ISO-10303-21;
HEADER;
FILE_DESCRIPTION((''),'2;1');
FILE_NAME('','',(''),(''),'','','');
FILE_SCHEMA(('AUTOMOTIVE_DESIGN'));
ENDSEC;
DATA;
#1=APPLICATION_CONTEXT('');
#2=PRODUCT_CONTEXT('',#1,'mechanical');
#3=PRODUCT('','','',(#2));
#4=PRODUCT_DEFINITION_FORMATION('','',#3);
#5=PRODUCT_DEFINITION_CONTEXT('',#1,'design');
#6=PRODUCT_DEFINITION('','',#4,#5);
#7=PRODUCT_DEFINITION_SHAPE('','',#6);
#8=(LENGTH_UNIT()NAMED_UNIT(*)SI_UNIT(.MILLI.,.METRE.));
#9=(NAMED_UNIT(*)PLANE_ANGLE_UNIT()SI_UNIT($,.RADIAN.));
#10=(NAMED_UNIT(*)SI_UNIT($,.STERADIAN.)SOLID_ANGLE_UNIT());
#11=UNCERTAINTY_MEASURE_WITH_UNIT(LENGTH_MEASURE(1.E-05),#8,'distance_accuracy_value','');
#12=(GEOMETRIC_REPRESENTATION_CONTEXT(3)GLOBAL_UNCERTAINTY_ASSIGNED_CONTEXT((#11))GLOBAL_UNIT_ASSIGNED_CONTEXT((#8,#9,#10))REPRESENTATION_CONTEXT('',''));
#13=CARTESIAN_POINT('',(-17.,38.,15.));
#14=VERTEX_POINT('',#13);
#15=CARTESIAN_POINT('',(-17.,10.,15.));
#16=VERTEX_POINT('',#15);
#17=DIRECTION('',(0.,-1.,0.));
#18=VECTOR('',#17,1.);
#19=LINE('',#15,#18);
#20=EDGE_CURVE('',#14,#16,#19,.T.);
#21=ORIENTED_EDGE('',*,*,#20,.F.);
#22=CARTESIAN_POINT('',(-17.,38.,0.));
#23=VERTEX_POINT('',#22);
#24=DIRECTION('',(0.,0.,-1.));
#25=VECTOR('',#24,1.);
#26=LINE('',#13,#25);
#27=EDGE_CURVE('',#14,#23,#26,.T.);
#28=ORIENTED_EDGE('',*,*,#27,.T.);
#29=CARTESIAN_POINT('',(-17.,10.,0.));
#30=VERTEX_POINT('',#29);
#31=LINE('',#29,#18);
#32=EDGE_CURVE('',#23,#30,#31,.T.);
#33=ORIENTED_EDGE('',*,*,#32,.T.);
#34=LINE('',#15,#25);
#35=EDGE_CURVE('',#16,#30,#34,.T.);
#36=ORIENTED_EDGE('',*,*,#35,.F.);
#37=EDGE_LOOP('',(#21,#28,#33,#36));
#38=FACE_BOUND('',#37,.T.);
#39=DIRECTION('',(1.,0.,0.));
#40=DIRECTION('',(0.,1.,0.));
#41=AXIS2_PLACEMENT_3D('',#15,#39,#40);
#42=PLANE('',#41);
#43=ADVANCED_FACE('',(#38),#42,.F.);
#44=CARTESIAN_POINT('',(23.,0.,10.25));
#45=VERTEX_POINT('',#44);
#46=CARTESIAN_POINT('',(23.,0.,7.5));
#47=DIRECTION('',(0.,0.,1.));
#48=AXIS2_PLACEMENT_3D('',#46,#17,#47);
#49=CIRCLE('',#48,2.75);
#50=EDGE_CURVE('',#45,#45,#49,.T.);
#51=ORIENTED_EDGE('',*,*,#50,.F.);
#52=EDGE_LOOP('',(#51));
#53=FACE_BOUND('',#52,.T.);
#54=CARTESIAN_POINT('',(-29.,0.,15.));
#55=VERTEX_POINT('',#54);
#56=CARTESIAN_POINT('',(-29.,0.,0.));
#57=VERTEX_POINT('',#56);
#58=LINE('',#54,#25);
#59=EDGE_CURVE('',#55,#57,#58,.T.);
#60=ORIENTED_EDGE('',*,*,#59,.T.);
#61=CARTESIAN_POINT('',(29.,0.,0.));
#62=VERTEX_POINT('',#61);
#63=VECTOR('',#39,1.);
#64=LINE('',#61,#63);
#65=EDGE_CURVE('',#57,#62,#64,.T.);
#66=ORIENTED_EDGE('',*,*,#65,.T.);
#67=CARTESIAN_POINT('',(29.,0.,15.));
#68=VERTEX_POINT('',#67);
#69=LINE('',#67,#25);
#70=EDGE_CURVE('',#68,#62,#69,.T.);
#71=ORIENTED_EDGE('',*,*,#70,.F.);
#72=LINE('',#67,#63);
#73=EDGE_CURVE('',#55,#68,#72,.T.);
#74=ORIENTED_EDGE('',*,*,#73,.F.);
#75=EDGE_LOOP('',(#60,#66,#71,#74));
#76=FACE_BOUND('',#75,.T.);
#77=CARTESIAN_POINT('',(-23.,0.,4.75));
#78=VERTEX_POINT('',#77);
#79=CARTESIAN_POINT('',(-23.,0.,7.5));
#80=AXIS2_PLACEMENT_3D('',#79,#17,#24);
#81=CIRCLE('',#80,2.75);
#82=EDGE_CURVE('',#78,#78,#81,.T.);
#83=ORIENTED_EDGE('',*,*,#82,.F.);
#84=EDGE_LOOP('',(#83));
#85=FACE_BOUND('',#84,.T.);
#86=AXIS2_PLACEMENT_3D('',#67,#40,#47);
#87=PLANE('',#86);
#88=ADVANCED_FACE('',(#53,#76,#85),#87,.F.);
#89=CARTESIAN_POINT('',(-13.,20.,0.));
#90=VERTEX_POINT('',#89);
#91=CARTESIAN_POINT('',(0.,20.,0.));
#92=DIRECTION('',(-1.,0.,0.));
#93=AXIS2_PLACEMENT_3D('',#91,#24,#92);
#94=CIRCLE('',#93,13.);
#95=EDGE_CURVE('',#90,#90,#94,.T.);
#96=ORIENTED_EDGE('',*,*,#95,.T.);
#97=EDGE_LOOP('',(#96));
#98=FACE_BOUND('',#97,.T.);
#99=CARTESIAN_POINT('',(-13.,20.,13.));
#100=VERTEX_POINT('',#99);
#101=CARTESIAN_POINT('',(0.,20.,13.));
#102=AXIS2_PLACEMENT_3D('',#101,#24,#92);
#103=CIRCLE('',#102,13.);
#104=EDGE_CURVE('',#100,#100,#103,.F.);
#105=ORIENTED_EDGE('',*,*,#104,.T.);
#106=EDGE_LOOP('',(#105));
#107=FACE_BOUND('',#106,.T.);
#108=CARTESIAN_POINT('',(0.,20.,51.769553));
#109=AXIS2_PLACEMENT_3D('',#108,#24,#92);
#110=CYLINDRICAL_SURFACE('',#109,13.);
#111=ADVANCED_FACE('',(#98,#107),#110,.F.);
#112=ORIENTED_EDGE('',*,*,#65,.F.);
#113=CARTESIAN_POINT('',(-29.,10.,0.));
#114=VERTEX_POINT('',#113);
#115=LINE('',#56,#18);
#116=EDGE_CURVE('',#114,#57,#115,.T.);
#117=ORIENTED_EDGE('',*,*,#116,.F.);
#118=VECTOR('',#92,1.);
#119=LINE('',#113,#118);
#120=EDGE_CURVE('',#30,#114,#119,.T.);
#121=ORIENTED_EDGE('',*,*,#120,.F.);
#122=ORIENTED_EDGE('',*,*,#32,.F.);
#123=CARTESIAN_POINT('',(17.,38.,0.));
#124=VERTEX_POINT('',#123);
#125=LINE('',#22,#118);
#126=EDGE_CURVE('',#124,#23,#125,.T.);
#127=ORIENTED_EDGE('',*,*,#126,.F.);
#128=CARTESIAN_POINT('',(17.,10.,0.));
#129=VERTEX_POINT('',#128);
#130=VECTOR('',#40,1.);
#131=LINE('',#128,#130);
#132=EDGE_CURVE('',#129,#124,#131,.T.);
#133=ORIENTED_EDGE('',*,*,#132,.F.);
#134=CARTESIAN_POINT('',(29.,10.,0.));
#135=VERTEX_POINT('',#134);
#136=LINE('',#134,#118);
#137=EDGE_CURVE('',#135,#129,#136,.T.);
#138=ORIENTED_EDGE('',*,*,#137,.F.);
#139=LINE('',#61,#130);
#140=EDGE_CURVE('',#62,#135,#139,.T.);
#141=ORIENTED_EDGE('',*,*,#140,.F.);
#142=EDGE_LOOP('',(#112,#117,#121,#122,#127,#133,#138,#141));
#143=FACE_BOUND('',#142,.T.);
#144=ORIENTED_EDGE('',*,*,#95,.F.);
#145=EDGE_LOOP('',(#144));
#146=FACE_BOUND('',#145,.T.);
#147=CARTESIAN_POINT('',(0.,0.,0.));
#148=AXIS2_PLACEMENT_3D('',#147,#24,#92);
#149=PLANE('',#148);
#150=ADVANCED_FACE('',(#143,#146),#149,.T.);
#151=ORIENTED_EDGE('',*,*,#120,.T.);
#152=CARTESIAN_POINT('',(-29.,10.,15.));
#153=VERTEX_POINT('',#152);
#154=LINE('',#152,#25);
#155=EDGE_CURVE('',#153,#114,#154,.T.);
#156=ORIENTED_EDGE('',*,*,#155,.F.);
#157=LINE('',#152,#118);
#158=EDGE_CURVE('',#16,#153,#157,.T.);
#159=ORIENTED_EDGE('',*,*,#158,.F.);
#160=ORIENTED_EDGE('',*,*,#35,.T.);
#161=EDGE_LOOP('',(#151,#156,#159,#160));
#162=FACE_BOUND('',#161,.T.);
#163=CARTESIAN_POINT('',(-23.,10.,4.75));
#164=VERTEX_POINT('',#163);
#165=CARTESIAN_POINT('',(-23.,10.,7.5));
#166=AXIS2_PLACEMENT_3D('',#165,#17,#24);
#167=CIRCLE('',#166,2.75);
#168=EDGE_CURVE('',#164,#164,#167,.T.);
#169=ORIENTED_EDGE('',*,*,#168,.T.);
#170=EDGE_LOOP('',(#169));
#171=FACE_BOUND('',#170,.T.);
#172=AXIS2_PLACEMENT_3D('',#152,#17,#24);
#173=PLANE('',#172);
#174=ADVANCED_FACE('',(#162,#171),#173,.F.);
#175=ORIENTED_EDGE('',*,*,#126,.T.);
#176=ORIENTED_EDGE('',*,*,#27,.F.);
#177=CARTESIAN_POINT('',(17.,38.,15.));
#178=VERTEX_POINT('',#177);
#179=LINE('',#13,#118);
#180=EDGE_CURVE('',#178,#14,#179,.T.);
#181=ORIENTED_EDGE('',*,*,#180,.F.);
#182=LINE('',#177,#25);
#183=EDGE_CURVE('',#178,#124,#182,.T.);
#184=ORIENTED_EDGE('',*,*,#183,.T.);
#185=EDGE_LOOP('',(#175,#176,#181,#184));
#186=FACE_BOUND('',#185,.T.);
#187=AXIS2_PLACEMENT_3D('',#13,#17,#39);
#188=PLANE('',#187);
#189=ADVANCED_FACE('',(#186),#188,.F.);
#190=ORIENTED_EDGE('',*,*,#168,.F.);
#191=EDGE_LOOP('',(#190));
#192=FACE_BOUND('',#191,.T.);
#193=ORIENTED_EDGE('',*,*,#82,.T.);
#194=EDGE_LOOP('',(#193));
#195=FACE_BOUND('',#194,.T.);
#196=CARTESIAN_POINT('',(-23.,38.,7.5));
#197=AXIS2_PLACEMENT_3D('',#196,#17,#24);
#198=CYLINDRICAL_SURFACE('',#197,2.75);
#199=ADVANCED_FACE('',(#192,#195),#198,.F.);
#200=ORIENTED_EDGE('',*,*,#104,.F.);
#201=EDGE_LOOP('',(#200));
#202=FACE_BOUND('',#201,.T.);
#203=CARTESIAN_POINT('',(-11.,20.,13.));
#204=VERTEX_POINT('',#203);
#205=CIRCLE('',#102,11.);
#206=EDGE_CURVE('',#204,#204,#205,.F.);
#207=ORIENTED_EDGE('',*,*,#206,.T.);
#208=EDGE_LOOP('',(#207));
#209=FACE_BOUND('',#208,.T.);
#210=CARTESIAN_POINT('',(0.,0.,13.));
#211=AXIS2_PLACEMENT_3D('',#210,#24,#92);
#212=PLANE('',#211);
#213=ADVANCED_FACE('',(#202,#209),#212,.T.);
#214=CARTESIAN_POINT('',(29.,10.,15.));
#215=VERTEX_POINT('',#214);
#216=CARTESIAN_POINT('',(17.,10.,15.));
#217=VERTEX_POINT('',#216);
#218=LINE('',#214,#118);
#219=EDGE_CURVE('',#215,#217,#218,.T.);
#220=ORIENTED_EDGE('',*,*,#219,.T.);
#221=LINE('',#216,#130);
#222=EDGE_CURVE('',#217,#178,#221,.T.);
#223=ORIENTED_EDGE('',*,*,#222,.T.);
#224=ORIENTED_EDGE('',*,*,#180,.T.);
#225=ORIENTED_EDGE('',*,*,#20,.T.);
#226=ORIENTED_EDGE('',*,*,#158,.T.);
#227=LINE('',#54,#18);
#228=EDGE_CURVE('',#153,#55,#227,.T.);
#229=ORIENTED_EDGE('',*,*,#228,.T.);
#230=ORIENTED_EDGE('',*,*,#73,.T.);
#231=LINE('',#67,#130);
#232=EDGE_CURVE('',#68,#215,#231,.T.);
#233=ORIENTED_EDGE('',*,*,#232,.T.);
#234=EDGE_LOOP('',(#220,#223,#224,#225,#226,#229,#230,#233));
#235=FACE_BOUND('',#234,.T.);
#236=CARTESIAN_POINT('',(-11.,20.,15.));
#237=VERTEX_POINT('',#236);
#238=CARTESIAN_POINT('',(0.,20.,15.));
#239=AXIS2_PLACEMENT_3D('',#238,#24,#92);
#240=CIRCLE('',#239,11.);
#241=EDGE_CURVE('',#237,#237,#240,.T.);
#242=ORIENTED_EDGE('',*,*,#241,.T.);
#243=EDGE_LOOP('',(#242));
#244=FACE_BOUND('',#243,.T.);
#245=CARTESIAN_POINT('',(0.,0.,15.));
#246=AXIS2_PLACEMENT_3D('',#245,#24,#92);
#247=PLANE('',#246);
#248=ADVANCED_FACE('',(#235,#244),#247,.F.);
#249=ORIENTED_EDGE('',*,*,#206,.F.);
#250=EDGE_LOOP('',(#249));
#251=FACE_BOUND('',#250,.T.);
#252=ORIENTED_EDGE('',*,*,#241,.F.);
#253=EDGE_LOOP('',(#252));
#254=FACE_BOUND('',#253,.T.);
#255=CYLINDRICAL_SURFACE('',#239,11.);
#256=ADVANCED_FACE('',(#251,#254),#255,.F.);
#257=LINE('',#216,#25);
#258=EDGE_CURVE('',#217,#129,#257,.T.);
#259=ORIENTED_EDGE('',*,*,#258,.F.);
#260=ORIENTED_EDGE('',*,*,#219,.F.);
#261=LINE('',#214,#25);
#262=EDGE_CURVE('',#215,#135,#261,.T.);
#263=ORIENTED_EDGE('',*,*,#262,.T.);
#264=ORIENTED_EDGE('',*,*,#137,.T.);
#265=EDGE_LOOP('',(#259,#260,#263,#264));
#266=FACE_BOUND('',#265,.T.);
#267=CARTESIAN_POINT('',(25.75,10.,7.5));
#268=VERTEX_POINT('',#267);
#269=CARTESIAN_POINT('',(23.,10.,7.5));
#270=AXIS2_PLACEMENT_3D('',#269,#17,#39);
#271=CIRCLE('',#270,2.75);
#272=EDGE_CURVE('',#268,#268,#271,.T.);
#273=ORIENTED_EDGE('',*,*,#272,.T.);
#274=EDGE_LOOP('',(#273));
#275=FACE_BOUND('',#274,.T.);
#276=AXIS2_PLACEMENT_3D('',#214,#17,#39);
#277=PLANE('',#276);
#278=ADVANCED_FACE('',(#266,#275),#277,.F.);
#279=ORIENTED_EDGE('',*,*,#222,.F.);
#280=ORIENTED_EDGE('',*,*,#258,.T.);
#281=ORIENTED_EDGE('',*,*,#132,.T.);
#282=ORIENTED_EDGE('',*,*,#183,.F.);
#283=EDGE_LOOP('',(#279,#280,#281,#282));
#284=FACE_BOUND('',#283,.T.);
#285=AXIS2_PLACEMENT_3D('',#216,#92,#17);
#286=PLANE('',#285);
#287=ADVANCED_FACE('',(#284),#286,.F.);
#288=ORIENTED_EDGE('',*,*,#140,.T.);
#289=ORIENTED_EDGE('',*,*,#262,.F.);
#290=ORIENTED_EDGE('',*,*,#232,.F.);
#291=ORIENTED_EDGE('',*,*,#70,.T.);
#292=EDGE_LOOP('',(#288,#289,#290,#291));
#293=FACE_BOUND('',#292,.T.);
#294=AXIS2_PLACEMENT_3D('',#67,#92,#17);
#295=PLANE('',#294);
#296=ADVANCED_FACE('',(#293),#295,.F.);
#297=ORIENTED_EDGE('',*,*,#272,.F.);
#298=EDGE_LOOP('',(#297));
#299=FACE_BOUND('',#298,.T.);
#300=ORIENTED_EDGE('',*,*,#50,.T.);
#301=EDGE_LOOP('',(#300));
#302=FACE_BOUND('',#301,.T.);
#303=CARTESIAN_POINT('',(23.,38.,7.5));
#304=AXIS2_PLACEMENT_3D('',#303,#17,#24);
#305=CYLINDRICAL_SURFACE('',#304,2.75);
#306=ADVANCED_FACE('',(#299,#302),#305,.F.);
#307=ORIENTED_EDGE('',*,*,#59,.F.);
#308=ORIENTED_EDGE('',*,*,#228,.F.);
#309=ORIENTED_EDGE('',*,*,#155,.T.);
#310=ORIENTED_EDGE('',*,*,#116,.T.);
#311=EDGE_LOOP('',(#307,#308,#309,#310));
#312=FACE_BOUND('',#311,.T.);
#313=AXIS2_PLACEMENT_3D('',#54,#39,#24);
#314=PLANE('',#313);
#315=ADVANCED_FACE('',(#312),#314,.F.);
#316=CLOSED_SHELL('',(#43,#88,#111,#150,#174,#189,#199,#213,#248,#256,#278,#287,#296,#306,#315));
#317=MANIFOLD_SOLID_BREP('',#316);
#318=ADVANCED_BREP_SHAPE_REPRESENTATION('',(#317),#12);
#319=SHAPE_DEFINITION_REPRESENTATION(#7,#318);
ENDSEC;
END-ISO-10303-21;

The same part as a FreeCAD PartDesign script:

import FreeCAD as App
import Part
import Sketcher


def add_polygon(sketch, points):
    """Adds a closed chain of lines whose ends are joined by coincident constraints."""
    first, n = sketch.GeometryCount, len(points)
    for a, b in zip(points, points[1:] + points[:1]):
        sketch.addGeometry(Part.LineSegment(App.Vector(*a, 0), App.Vector(*b, 0)), False)
    for i in range(n):
        sketch.addConstraint(Sketcher.Constraint("Coincident", first + i, 2, first + (i + 1) % n, 1))

doc = App.newDocument("Part")
body = doc.addObject("PartDesign::Body", "Body")

# Sketch on XY plane
sketch1 = body.newObject("Sketcher::SketchObject", "Sketch")
sketch1.AttachmentSupport = (doc.getObject("XY_Plane"), [""])
sketch1.MapMode = "FlatFace"
add_polygon(sketch1, [(-29, 0), (29, 0), (29, 10), (17, 10), (17, 38), (-17, 38), (-17, 10), (-29, 10)])  # lines 0-7
sketch1.addConstraint(Sketcher.Constraint("Horizontal", 0))
sketch1.addConstraint(Sketcher.Constraint("Vertical", 1))
sketch1.addConstraint(Sketcher.Constraint("Horizontal", 2))
sketch1.addConstraint(Sketcher.Constraint("Vertical", 3))
sketch1.addConstraint(Sketcher.Constraint("Horizontal", 4))
sketch1.addConstraint(Sketcher.Constraint("Vertical", 5))
sketch1.addConstraint(Sketcher.Constraint("Horizontal", 6))
sketch1.addConstraint(Sketcher.Constraint("Vertical", 7))
sketch1.addConstraint(Sketcher.Constraint("Symmetric", 0, 2, 7, 2, -1, 1))
sketch1.addConstraint(Sketcher.Constraint("Symmetric", 2, 2, 5, 2, -2))
sketch1.addConstraint(Sketcher.Constraint("DistanceX", 0, 1, 0, 2, 58.0))
sketch1.addConstraint(Sketcher.Constraint("DistanceX", 2, 2, 2, 1, 12.0))
sketch1.addConstraint(Sketcher.Constraint("DistanceY", 1, 1, 1, 2, 10.0))
sketch1.addConstraint(Sketcher.Constraint("DistanceY", 3, 1, 3, 2, 28.0))
pad1 = body.newObject("PartDesign::Pad", "Pad")
pad1.Profile = sketch1
pad1.Length = 15

# Sketch on XY plane
sketch2 = body.newObject("Sketcher::SketchObject", "Sketch001")
sketch2.AttachmentSupport = (doc.getObject("XY_Plane"), [""])
sketch2.MapMode = "FlatFace"
sketch2.addGeometry(Part.Circle(App.Vector(0, 20, 0), App.Vector(0, 0, 1), 11), False)
sketch2.addConstraint(Sketcher.Constraint("PointOnObject", 0, 3, -2))
sketch2.addConstraint(Sketcher.Constraint("Diameter", 0, 22.0))
sketch2.addConstraint(Sketcher.Constraint("DistanceY", -1, 1, 0, 3, 20.0))
pocket1 = body.newObject("PartDesign::Pocket", "Pocket")
pocket1.Profile = sketch2
pocket1.Type = "ThroughAll"
pocket1.Reversed = True

# Sketch on XY plane
sketch3 = body.newObject("Sketcher::SketchObject", "Sketch002")
sketch3.AttachmentSupport = (doc.getObject("XY_Plane"), [""])
sketch3.MapMode = "FlatFace"
sketch3.addGeometry(Part.Circle(App.Vector(0, 20, 0), App.Vector(0, 0, 1), 13), False)
sketch3.addConstraint(Sketcher.Constraint("PointOnObject", 0, 3, -2))
sketch3.addConstraint(Sketcher.Constraint("Diameter", 0, 26.0))
sketch3.addConstraint(Sketcher.Constraint("DistanceY", -1, 1, 0, 3, 20.0))
pocket2 = body.newObject("PartDesign::Pocket", "Pocket001")
pocket2.Profile = sketch3
pocket2.Length = 13
pocket2.Reversed = True

# Sketch on XZ plane
sketch4 = body.newObject("Sketcher::SketchObject", "Sketch003")
sketch4.AttachmentSupport = (doc.getObject("XZ_Plane"), [""])
sketch4.MapMode = "FlatFace"
sketch4.addGeometry(Part.Circle(App.Vector(-23, 7.5, 0), App.Vector(0, 0, 1), 2.75), False)
sketch4.addGeometry(Part.Circle(App.Vector(23, 7.5, 0), App.Vector(0, 0, 1), 2.75), False)
sketch4.addConstraint(Sketcher.Constraint("Equal", 0, 1))
sketch4.addConstraint(Sketcher.Constraint("Symmetric", 0, 3, 1, 3, -2))
sketch4.addConstraint(Sketcher.Constraint("Diameter", 0, 5.5))
sketch4.addConstraint(Sketcher.Constraint("DistanceX", 0, 3, -1, 1, 23.0))
sketch4.addConstraint(Sketcher.Constraint("DistanceY", -1, 1, 0, 3, 7.5))
pocket3 = body.newObject("PartDesign::Pocket", "Pocket002")
pocket3.Profile = sketch4
pocket3.Type = "ThroughAll"

doc.recompute()
